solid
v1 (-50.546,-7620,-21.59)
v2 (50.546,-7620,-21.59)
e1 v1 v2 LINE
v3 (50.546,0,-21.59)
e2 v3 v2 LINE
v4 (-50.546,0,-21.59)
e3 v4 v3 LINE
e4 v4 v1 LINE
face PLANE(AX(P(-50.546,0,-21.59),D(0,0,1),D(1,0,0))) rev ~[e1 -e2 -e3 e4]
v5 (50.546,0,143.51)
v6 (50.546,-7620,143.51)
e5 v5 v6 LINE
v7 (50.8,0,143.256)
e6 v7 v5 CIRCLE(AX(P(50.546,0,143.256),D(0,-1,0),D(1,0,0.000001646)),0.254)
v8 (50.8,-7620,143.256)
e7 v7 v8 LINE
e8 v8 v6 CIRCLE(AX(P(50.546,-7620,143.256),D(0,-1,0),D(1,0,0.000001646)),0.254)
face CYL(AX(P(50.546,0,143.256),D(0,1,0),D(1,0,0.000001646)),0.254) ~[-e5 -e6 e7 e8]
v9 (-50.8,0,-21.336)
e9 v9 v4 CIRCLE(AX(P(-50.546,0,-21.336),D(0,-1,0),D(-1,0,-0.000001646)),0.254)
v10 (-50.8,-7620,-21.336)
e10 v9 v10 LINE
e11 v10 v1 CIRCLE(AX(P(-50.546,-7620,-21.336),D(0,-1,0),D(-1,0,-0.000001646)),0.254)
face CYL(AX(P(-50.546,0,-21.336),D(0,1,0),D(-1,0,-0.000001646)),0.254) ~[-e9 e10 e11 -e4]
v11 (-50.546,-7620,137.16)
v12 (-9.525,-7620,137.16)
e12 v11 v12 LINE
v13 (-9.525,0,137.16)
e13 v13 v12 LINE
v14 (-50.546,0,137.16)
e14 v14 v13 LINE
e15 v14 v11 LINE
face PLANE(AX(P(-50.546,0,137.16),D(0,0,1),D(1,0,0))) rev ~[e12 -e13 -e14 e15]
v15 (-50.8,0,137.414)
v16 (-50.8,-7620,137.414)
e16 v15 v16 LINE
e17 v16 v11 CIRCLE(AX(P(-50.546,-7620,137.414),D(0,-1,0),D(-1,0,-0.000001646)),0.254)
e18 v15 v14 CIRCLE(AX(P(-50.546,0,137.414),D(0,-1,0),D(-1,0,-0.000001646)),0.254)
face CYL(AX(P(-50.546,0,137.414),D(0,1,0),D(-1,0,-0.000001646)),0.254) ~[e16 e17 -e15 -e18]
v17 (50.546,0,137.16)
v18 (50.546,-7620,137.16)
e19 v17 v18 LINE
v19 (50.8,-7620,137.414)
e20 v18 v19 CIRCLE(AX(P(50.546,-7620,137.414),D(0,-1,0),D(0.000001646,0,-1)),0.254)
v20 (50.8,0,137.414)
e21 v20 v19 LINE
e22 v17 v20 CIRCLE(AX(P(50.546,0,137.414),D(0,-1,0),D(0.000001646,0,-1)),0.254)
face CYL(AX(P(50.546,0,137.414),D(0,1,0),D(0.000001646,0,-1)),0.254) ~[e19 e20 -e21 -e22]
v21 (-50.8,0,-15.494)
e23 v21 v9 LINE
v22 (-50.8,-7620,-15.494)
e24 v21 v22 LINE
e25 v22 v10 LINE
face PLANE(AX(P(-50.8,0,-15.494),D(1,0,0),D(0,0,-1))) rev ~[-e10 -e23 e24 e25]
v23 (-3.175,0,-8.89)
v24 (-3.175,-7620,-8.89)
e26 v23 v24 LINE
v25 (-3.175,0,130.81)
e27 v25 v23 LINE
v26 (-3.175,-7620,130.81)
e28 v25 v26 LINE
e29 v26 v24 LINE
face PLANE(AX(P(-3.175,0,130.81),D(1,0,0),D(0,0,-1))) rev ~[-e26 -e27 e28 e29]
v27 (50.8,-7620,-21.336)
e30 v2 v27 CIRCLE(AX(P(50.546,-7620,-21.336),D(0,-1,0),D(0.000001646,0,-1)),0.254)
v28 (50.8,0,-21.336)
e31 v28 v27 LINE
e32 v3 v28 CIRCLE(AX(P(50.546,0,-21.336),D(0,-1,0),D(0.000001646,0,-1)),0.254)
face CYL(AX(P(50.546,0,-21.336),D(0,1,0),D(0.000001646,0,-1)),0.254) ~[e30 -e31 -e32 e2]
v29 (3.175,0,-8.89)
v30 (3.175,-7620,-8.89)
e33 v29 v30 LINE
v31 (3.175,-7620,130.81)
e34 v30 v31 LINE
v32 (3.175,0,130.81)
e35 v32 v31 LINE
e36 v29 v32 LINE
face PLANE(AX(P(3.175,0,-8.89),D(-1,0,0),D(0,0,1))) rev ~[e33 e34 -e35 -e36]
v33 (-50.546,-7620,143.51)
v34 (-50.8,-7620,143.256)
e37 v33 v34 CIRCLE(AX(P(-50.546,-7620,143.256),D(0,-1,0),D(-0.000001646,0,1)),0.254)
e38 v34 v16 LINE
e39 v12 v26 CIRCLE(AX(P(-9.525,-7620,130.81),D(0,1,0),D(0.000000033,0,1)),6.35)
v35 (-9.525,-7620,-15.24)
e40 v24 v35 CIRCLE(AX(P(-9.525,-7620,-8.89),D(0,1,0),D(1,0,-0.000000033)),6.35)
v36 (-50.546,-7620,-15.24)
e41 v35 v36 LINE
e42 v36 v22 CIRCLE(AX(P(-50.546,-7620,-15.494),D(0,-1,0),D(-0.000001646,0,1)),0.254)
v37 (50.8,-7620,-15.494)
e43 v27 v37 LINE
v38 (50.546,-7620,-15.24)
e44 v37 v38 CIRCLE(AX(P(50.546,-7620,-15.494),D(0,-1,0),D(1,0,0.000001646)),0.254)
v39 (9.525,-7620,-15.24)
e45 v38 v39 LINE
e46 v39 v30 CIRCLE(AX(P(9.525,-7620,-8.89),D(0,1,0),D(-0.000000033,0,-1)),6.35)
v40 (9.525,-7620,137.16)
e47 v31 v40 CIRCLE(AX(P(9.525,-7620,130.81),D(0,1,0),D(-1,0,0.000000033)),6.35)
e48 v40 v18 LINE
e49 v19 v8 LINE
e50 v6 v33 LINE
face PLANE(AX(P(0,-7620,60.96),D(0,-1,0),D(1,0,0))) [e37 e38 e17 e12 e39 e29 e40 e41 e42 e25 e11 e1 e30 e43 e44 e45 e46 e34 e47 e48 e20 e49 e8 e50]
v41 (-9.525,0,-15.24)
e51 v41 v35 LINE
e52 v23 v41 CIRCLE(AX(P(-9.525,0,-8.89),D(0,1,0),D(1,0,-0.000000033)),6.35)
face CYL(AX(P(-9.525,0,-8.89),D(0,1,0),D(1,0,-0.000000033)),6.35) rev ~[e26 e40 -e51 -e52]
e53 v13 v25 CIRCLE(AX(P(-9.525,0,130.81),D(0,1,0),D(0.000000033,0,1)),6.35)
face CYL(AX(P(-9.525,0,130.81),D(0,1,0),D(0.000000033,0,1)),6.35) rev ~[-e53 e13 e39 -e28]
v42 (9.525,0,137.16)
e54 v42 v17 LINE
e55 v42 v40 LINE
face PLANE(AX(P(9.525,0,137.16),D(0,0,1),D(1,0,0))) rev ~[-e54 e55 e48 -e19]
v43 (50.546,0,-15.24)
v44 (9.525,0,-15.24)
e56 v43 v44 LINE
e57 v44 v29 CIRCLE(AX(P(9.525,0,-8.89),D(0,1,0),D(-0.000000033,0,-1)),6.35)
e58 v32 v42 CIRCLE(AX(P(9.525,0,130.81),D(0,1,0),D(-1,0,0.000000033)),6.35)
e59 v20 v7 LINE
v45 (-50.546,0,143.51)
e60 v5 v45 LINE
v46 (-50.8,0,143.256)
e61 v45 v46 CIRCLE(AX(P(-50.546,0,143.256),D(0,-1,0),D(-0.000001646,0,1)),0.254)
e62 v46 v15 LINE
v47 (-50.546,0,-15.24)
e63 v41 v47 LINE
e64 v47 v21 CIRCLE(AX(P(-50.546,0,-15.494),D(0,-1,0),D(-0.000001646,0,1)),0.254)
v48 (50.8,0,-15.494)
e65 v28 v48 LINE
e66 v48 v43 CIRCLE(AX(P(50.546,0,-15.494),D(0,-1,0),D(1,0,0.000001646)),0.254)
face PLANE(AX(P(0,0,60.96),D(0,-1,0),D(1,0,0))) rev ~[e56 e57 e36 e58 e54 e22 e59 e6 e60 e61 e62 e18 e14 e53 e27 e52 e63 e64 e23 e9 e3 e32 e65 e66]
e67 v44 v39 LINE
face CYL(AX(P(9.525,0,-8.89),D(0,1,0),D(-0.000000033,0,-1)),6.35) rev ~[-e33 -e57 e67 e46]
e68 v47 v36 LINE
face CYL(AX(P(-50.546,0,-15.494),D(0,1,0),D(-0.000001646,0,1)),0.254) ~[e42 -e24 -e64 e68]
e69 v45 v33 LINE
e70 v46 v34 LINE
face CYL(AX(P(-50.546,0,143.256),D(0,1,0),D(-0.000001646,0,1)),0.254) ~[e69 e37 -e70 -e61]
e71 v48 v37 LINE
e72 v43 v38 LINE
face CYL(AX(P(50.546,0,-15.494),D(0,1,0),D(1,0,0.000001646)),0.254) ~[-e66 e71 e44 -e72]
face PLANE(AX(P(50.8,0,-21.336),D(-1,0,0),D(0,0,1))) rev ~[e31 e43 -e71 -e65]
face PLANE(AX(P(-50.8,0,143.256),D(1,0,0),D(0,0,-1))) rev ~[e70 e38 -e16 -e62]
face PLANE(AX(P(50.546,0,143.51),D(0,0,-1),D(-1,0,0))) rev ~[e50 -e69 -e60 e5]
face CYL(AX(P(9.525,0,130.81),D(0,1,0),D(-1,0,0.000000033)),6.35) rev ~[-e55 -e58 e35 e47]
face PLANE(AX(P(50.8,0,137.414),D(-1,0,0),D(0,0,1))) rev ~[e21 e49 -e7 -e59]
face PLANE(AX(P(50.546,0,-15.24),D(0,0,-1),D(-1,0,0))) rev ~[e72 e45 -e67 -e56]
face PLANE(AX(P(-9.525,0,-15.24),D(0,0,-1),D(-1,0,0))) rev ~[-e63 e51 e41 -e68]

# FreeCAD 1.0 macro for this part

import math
import FreeCAD as App
import Part
import Sketcher
from FreeCAD import Vector
Q = App.Units.Quantity

doc = App.newDocument("Part")
body = doc.addObject("PartDesign::Body", "Body")

# Sketch on XZ plane
sketch1 = doc.addObject("Sketcher::SketchObject", "Sketch")
body.addObject(sketch1)
sketch1.AttachmentSupport = (doc.XZ_Plane, [""])
sketch1.MapMode = "FlatFace"
sketch1.addGeometry([
    Part.ArcOfCircle(Part.Circle(Vector(-50.55, 137.41, 0), Vector(0, 0, 1), 0.25), math.radians(-180), math.radians(-90)),  # 0
    Part.LineSegment(Vector(-50.55, 137.16, 0), Vector(-9.53, 137.16, 0)),  # 1
    Part.ArcOfCircle(Part.Circle(Vector(-9.53, 130.81, 0), Vector(0, 0, 1), 6.35), math.radians(0), math.radians(90)),  # 2
    Part.LineSegment(Vector(-3.17, 130.81, 0), Vector(-3.17, -8.89, 0)),  # 3
    Part.ArcOfCircle(Part.Circle(Vector(-9.53, -8.89, 0), Vector(0, 0, 1), 6.35), math.radians(-90), math.radians(0)),  # 4
    Part.LineSegment(Vector(-9.53, -15.24, 0), Vector(-50.55, -15.24, 0)),  # 5
    Part.ArcOfCircle(Part.Circle(Vector(-50.55, -15.49, 0), Vector(0, 0, 1), 0.25), math.radians(90), math.radians(180)),  # 6
    Part.LineSegment(Vector(-50.8, -15.49, 0), Vector(-50.8, -21.34, 0)),  # 7
    Part.ArcOfCircle(Part.Circle(Vector(-50.55, -21.34, 0), Vector(0, 0, 1), 0.25), math.radians(-180), math.radians(-90)),  # 8
    Part.LineSegment(Vector(-50.55, -21.59, 0), Vector(50.55, -21.59, 0)),  # 9
    Part.ArcOfCircle(Part.Circle(Vector(50.55, -21.34, 0), Vector(0, 0, 1), 0.25), math.radians(-90), math.radians(0)),  # 10
    Part.LineSegment(Vector(50.8, -21.34, 0), Vector(50.8, -15.49, 0)),  # 11
    Part.ArcOfCircle(Part.Circle(Vector(50.55, -15.49, 0), Vector(0, 0, 1), 0.25), math.radians(0), math.radians(90)),  # 12
    Part.LineSegment(Vector(50.55, -15.24, 0), Vector(9.53, -15.24, 0)),  # 13
    Part.ArcOfCircle(Part.Circle(Vector(9.53, -8.89, 0), Vector(0, 0, 1), 6.35), math.radians(-180), math.radians(-90)),  # 14
    Part.LineSegment(Vector(3.17, -8.89, 0), Vector(3.17, 130.81, 0)),  # 15
    Part.ArcOfCircle(Part.Circle(Vector(9.53, 130.81, 0), Vector(0, 0, 1), 6.35), math.radians(90), math.radians(180)),  # 16
    Part.LineSegment(Vector(9.53, 137.16, 0), Vector(50.55, 137.16, 0)),  # 17
    Part.ArcOfCircle(Part.Circle(Vector(50.55, 137.41, 0), Vector(0, 0, 1), 0.25), math.radians(-90), math.radians(0)),  # 18
    Part.LineSegment(Vector(50.8, 137.41, 0), Vector(50.8, 143.26, 0)),  # 19
    Part.ArcOfCircle(Part.Circle(Vector(50.55, 143.26, 0), Vector(0, 0, 1), 0.25), math.radians(0), math.radians(90)),  # 20
    Part.LineSegment(Vector(50.55, 143.51, 0), Vector(-50.55, 143.51, 0)),  # 21
    Part.ArcOfCircle(Part.Circle(Vector(-50.55, 143.26, 0), Vector(0, 0, 1), 0.25), math.radians(90), math.radians(180)),  # 22
    Part.LineSegment(Vector(-50.8, 143.26, 0), Vector(-50.8, 137.41, 0)),  # 23
], False)
sketch1.addConstraint([
    Sketcher.Constraint("Tangent", 0, 2, 1, 1),
    Sketcher.Constraint("Tangent", 1, 2, 2, 2),
    Sketcher.Constraint("Tangent", 2, 1, 3, 1),
    Sketcher.Constraint("Tangent", 3, 2, 4, 2),
    Sketcher.Constraint("Tangent", 4, 1, 5, 1),
    Sketcher.Constraint("Tangent", 5, 2, 6, 1),
    Sketcher.Constraint("Tangent", 6, 2, 7, 1),
    Sketcher.Constraint("Tangent", 7, 2, 8, 1),
    Sketcher.Constraint("Tangent", 8, 2, 9, 1),
    Sketcher.Constraint("Tangent", 9, 2, 10, 1),
    Sketcher.Constraint("Tangent", 10, 2, 11, 1),
    Sketcher.Constraint("Tangent", 11, 2, 12, 1),
    Sketcher.Constraint("Tangent", 12, 2, 13, 1),
    Sketcher.Constraint("Tangent", 13, 2, 14, 2),
    Sketcher.Constraint("Tangent", 14, 1, 15, 1),
    Sketcher.Constraint("Tangent", 15, 2, 16, 2),
    Sketcher.Constraint("Tangent", 16, 1, 17, 1),
    Sketcher.Constraint("Tangent", 17, 2, 18, 1),
    Sketcher.Constraint("Tangent", 18, 2, 19, 1),
    Sketcher.Constraint("Tangent", 19, 2, 20, 1),
    Sketcher.Constraint("Tangent", 20, 2, 21, 1),
    Sketcher.Constraint("Tangent", 21, 2, 22, 1),
    Sketcher.Constraint("Tangent", 22, 2, 23, 1),
    Sketcher.Constraint("Tangent", 23, 2, 0, 1),
    Sketcher.Constraint("Horizontal", 1),
    Sketcher.Constraint("Vertical", 3),
    Sketcher.Constraint("Horizontal", 5),
    Sketcher.Constraint("Vertical", 7),
    Sketcher.Constraint("Horizontal", 9),
    Sketcher.Constraint("Vertical", 11),
    Sketcher.Constraint("Horizontal", 13),
    Sketcher.Constraint("Vertical", 15),
    Sketcher.Constraint("Horizontal", 17),
    Sketcher.Constraint("Vertical", 19),
    Sketcher.Constraint("Horizontal", 21),
    Sketcher.Constraint("Vertical", 23),
    Sketcher.Constraint("Equal", 2, 4),
    Sketcher.Constraint("Equal", 0, 6),
    Sketcher.Constraint("Equal", 6, 8),
    Sketcher.Constraint("Equal", 8, 10),
    Sketcher.Constraint("Equal", 10, 12),
    Sketcher.Constraint("Equal", 4, 14),
    Sketcher.Constraint("Equal", 14, 16),
    Sketcher.Constraint("Equal", 12, 18),
    Sketcher.Constraint("Equal", 18, 20),
    Sketcher.Constraint("Equal", 20, 22),
    Sketcher.Constraint("Symmetric", 6, 3, 12, 3, -2),
    Sketcher.Constraint("Symmetric", 2, 3, 16, 3, -2),
    Sketcher.Constraint("Vertical", 0, 3, 6, 3),
    Sketcher.Constraint("Vertical", 12, 3, 18, 3),
    Sketcher.Constraint("Equal", 11, 19),
    Sketcher.Constraint("Radius", 0, Q("0.01 in")),
    Sketcher.Constraint("Radius", 2, Q("0.25 in")),
    Sketcher.Constraint("DistanceY", 3, 2, 3, 1, Q("5.5 in")),
    Sketcher.Constraint("DistanceX", 6, 2, -1, 1, Q("2 in")),
    Sketcher.Constraint("DistanceY", 7, 2, 7, 1, Q("0.23 in")),
    Sketcher.Constraint("DistanceY", -1, 1, 0, 2, Q("5.4 in")),
    Sketcher.Constraint("DistanceX", 2, 1, 16, 3, Q("0.5 in")),
])
pad1 = doc.addObject("PartDesign::Pad", "Pad")
body.addObject(pad1)
pad1.Profile = sketch1
pad1.Length = Q("300 in")

doc.recompute()
